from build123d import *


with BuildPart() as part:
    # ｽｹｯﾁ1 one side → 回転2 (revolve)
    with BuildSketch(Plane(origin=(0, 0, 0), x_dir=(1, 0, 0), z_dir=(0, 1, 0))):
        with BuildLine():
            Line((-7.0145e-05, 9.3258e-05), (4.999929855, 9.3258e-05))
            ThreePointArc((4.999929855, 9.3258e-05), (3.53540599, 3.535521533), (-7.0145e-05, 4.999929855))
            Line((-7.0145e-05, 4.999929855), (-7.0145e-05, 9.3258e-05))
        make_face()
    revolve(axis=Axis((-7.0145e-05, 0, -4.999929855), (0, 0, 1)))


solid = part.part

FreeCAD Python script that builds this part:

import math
import FreeCAD as App
import Part
import Sketcher

doc = App.newDocument("Part")
body = doc.addObject("PartDesign::Body", "Body")

sketch1 = body.newObject("Sketcher::SketchObject", "Sketch")
sketch1.AttachmentSupport = (doc.getObject("XZ_Plane"), [""])
sketch1.MapMode = "FlatFace"
sketch1.addGeometry([
    Part.LineSegment(App.Vector(-0.00007, -0.000093, 0), App.Vector(4.99993, -0.000093, 0)),
    Part.ArcOfCircle(Part.Circle(App.Vector(-0.00007, 0.00007, 0), App.Vector(0, 0, 1), 5), math.radians(-90), math.radians(-0.001872)),
    Part.LineSegment(App.Vector(-0.00007, -4.99993, 0), App.Vector(-0.00007, -0.000093, 0)),
], False)
sketch1.addGeometry(Part.LineSegment(App.Vector(-0.00007, -4.99993, 0), App.Vector(-0.00007, 0.00007, 0)), True)
sketch1.addConstraint([
    Sketcher.Constraint("Coincident", 0, 2, 1, 2),
    Sketcher.Constraint("Coincident", 1, 1, 2, 1),
    Sketcher.Constraint("Coincident", 2, 2, 0, 1),
    Sketcher.Constraint("Horizontal", 0),
    Sketcher.Constraint("Vertical", 2),
    Sketcher.Constraint("Vertical", 3),
    Sketcher.Constraint("Coincident", 3, 1, 1, 1),
    Sketcher.Constraint("Coincident", 3, 2, 1, 3),
    Sketcher.Constraint("Radius", 1, 5.0),
    Sketcher.Constraint("DistanceY", 2, 1, 2, 2, 4.999837),
    Sketcher.Constraint("DistanceX", -1, 1, 0, 2, 4.99993),
    Sketcher.Constraint("DistanceY", 1, 1, -1, 1, 4.99993),
])
revolution = body.newObject("PartDesign::Revolution", "Revolution")
revolution.Profile = sketch1
revolution.ReferenceAxis = (sketch1, ["Axis0"])
revolution.Angle = 360

doc.recompute()
